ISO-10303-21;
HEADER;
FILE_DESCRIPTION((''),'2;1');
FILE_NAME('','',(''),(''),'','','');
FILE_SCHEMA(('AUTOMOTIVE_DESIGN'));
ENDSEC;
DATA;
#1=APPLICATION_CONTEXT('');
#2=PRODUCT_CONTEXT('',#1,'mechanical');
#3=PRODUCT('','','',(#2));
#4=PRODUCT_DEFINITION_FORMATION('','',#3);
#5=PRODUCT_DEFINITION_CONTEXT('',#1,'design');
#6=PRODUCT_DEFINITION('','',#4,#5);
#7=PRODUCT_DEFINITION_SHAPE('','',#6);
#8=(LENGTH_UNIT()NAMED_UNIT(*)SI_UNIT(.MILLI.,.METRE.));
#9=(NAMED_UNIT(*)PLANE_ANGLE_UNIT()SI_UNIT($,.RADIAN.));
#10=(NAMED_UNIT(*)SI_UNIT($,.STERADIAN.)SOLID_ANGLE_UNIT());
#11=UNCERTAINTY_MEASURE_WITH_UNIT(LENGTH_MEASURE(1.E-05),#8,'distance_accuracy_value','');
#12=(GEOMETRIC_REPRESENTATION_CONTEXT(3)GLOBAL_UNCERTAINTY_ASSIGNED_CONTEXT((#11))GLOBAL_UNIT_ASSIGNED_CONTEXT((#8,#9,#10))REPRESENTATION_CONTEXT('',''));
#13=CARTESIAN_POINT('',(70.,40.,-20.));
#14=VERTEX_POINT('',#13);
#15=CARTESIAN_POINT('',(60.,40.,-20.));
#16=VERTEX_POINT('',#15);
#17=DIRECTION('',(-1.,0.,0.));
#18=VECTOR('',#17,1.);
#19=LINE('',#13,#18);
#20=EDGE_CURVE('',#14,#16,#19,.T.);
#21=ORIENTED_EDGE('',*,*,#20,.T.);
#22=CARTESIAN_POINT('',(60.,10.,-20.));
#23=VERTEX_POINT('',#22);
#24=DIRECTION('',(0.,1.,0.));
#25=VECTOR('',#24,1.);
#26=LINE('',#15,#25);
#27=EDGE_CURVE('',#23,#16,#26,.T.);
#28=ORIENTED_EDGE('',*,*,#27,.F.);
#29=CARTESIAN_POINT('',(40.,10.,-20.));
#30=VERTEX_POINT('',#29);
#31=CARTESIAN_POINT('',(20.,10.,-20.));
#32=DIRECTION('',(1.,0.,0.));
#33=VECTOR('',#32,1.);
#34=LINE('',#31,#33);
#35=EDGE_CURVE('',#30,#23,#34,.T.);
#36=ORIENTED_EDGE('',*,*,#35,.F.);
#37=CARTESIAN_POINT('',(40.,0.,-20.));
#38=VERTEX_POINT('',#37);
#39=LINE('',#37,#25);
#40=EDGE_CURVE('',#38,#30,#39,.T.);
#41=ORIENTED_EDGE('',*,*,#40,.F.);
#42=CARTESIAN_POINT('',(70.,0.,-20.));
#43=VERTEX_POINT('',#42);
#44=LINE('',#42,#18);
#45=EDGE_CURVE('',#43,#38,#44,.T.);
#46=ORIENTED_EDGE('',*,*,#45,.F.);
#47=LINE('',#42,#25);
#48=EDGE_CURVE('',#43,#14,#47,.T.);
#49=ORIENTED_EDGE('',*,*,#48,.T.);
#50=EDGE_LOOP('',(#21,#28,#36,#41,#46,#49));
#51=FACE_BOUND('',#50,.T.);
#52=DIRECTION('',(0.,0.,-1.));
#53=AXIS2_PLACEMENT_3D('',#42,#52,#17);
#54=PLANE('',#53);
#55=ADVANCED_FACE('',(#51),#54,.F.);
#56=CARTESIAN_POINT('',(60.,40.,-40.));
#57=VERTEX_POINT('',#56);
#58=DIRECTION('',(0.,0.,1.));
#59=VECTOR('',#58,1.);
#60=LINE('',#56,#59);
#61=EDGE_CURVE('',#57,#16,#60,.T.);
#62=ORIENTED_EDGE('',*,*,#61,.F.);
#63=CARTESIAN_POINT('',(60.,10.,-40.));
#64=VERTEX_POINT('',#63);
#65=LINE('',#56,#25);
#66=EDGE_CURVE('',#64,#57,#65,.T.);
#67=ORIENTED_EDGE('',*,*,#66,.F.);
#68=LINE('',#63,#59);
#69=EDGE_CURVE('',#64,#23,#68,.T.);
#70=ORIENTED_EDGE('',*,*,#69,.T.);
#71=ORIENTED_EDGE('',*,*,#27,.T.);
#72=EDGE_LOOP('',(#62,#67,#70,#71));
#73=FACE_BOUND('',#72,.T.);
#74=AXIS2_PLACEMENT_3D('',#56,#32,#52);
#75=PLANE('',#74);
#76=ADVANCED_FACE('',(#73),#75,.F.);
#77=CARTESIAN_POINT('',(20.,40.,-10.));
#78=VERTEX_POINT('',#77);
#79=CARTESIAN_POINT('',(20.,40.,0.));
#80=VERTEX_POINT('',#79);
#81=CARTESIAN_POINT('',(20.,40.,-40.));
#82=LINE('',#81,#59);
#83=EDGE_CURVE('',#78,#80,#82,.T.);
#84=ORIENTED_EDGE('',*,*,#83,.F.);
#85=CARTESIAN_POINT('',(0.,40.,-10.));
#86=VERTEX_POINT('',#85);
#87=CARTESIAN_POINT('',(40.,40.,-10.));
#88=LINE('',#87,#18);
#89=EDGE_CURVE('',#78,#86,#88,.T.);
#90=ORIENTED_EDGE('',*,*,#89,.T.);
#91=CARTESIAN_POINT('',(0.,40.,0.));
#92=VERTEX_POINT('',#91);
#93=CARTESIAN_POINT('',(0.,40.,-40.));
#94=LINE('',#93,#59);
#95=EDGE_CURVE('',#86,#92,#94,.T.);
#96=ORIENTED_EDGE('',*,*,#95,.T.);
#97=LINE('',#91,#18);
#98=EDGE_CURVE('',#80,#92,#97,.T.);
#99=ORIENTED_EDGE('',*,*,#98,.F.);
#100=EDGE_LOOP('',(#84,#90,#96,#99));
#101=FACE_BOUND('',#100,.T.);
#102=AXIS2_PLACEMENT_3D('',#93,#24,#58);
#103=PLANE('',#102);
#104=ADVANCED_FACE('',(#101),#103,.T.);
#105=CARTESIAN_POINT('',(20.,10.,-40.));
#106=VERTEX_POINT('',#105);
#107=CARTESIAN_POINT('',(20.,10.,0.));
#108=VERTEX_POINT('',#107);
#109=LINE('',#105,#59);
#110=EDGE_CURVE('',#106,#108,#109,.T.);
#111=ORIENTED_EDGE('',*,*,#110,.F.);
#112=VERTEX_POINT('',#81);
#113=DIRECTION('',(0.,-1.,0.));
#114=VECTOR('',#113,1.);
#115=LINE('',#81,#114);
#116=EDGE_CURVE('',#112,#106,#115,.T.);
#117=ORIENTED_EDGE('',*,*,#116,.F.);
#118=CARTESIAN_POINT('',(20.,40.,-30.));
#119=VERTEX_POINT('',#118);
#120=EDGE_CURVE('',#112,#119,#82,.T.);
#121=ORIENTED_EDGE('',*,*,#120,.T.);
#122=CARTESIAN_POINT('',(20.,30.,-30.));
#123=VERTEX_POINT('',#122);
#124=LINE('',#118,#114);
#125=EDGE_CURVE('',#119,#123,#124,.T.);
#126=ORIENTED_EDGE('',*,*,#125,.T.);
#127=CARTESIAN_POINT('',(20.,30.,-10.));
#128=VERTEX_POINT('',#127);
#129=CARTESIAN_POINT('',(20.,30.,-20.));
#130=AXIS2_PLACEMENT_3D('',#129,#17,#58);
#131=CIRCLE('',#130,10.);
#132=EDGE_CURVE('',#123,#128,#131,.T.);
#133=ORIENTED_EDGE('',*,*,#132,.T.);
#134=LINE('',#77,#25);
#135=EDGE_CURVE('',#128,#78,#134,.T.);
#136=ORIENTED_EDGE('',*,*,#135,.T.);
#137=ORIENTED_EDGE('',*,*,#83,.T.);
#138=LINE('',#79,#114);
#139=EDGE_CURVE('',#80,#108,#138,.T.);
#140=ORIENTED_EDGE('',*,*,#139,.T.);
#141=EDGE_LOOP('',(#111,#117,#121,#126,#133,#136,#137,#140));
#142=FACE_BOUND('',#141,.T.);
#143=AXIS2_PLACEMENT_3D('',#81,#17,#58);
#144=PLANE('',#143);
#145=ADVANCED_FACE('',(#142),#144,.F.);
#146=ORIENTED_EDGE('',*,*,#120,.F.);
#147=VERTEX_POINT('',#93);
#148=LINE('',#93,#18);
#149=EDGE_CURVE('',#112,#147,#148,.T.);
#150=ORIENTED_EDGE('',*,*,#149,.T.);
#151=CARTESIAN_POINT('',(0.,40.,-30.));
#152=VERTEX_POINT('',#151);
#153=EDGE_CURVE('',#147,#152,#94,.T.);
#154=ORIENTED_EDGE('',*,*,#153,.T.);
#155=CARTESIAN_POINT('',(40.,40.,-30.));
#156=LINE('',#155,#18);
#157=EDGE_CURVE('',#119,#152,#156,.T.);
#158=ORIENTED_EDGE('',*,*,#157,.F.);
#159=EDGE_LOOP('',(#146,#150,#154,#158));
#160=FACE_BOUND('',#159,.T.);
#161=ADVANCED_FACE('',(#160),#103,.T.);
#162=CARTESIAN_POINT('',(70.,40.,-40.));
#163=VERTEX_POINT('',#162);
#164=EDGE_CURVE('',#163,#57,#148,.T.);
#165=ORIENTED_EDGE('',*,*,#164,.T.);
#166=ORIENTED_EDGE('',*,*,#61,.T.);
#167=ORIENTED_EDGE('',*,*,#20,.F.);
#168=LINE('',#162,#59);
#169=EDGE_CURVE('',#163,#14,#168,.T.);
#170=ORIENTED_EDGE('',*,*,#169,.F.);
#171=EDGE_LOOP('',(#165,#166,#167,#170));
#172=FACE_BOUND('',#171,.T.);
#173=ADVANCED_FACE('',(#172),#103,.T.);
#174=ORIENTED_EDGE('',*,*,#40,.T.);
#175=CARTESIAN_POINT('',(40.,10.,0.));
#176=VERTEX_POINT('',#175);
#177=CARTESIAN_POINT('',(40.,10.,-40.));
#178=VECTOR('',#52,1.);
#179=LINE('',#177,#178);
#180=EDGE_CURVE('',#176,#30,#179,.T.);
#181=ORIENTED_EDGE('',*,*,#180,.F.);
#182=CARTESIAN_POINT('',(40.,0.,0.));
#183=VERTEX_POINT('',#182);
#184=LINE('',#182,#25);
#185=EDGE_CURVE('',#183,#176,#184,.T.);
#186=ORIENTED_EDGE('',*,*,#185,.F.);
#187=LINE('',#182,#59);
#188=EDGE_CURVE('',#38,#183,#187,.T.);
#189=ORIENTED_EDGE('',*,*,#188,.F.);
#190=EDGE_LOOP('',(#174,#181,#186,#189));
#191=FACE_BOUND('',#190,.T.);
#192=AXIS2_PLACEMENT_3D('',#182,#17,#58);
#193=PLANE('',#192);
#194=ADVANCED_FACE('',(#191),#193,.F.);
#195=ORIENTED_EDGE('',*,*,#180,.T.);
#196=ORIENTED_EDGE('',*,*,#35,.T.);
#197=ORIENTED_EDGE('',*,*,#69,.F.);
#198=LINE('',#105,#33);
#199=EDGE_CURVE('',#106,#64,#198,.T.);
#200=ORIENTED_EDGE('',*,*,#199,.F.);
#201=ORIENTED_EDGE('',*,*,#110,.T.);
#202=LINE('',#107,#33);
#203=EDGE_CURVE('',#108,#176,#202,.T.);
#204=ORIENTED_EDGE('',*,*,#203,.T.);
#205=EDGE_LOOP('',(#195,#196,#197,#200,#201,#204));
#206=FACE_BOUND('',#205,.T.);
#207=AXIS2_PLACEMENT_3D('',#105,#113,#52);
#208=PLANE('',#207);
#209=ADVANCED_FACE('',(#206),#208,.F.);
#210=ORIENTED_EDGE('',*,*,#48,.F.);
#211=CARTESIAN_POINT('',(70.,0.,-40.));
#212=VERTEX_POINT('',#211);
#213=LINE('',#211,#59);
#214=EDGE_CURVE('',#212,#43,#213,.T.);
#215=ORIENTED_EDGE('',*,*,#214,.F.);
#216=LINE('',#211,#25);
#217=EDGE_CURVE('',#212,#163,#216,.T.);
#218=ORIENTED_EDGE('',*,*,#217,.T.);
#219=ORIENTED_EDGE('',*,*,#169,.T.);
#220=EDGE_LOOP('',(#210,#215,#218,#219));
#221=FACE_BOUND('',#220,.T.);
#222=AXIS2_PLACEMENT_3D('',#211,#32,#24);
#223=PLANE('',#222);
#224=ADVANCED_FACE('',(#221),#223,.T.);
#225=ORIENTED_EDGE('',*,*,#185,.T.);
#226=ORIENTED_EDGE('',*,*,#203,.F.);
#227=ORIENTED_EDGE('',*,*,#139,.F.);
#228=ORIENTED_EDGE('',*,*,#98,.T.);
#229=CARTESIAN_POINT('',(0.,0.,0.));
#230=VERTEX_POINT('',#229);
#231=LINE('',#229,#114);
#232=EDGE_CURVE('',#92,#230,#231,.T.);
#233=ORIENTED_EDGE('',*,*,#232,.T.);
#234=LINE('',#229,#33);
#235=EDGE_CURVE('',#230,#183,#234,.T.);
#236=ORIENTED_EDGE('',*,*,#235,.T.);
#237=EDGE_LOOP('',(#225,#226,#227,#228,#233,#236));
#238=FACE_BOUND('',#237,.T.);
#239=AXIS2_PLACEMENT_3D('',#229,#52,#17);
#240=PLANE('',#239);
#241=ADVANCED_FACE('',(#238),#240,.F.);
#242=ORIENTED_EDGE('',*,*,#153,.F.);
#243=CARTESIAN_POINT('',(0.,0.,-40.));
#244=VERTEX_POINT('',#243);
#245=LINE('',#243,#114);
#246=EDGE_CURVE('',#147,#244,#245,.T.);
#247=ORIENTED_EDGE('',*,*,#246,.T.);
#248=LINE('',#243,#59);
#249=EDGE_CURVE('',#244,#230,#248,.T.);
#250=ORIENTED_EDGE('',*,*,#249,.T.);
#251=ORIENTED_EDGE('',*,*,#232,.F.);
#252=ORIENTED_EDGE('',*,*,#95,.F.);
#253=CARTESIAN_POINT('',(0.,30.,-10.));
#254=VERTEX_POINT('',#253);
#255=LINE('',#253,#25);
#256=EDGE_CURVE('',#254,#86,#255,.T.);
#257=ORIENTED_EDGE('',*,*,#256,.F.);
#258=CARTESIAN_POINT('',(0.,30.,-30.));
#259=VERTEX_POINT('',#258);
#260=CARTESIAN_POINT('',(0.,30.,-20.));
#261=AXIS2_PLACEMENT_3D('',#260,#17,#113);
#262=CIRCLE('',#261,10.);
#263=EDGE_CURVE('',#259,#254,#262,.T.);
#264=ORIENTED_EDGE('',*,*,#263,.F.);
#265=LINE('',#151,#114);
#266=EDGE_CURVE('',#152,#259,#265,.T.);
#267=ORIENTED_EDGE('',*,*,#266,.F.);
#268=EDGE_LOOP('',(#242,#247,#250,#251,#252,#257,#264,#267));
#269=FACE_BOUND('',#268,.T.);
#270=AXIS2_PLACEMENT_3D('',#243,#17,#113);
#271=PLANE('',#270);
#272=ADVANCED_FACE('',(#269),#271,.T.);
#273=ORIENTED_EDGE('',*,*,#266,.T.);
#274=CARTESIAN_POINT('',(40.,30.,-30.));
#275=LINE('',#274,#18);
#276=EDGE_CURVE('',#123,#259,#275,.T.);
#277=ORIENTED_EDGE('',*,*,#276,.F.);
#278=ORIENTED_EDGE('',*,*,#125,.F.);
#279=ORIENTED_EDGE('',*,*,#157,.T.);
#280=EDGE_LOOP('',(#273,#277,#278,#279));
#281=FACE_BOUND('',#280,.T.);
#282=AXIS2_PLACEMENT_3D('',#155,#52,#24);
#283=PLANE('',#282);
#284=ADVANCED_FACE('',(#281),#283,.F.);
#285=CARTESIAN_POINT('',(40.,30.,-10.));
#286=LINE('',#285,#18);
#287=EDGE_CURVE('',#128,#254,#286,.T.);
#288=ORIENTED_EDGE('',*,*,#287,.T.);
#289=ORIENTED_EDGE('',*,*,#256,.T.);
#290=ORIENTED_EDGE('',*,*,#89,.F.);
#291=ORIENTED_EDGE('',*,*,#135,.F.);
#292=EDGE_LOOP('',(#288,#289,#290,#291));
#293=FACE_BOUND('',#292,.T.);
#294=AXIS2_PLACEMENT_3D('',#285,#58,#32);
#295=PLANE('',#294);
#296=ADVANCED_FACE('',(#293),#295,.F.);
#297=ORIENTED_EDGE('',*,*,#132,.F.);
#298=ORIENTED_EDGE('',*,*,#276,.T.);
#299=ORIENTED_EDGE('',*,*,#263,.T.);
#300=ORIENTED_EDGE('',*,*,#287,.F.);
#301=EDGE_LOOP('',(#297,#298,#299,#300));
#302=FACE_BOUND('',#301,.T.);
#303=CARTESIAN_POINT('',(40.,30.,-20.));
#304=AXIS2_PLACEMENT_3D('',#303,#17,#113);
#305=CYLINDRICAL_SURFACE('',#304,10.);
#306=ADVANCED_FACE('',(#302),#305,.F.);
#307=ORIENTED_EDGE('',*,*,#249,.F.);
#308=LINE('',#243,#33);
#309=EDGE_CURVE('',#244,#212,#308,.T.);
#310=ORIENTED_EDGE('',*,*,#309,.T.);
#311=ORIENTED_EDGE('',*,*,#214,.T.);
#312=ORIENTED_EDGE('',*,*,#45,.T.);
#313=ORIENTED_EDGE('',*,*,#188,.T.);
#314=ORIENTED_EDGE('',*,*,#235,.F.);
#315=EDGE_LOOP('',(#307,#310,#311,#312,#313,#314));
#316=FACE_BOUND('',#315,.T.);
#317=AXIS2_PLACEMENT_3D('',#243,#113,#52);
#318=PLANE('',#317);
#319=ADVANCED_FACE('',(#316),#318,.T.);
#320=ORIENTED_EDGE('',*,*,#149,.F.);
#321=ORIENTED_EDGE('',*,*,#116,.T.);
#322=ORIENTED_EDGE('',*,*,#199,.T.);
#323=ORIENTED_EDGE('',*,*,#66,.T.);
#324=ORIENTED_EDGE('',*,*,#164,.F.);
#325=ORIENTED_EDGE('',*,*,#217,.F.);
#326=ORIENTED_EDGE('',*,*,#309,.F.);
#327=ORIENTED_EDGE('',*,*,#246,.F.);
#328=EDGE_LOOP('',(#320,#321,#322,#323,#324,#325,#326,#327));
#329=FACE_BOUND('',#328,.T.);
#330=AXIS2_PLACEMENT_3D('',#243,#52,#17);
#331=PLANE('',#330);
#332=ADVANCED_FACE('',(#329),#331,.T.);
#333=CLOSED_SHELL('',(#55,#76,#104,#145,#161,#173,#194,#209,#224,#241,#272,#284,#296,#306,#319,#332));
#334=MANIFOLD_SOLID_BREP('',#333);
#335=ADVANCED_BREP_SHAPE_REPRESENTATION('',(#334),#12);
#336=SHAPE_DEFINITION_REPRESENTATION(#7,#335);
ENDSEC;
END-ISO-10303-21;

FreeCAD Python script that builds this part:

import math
import FreeCAD as App
import Part
import Sketcher
from FreeCAD import Vector
Q = App.Units.Quantity

doc = App.newDocument("Part")
body = doc.addObject("PartDesign::Body", "Body")

sketch1 = body.newObject("Sketcher::SketchObject", "Sketch")
sketch1.AttachmentSupport = (doc.getObject("XY_Plane"), [""])
sketch1.MapMode = "FlatFace"
sketch1.addGeometry(Part.LineSegment(Vector(0, 40, 0), Vector(0, 0, 0)), False)
sketch1.addGeometry(Part.LineSegment(Vector(0, 0, 0), Vector(70, 0, 0)), False)
sketch1.addGeometry(Part.LineSegment(Vector(70, 0, 0), Vector(70, 40, 0)), False)
sketch1.addGeometry(Part.LineSegment(Vector(70, 40, 0), Vector(0, 40, 0)), False)
sketch1.addConstraint(Sketcher.Constraint("Coincident", 0, 2, 1, 1))
sketch1.addConstraint(Sketcher.Constraint("Coincident", 1, 2, 2, 1))
sketch1.addConstraint(Sketcher.Constraint("Coincident", 2, 2, 3, 1))
sketch1.addConstraint(Sketcher.Constraint("Coincident", 3, 2, 0, 1))
sketch1.addConstraint(Sketcher.Constraint("Vertical", 0))
sketch1.addConstraint(Sketcher.Constraint("Horizontal", 1))
sketch1.addConstraint(Sketcher.Constraint("Vertical", 2))
sketch1.addConstraint(Sketcher.Constraint("Horizontal", 3))
sketch1.addConstraint(Sketcher.Constraint("Coincident", 0, 2, -1, 1))
sketch1.addConstraint(Sketcher.Constraint("DistanceX", 1, 1, 1, 2, Q("70 mm")))
sketch1.addConstraint(Sketcher.Constraint("DistanceY", 0, 2, 0, 1, Q("40 mm")))
pad1 = body.newObject("PartDesign::Pad", "Pad")
pad1.Profile = sketch1
pad1.Length = 40
pad1.Reversed = True

sketch2 = body.newObject("Sketcher::SketchObject", "Sketch001")
sketch2.AttachmentSupport = (doc.getObject("XY_Plane"), [""])
sketch2.MapMode = "FlatFace"
sketch2.addGeometry(Part.LineSegment(Vector(20, 40, 0), Vector(20, 10, 0)), False)
sketch2.addGeometry(Part.LineSegment(Vector(20, 10, 0), Vector(60, 10, 0)), False)
sketch2.addGeometry(Part.LineSegment(Vector(60, 10, 0), Vector(60, 40, 0)), False)
sketch2.addGeometry(Part.LineSegment(Vector(60, 40, 0), Vector(20, 40, 0)), False)
sketch2.addConstraint(Sketcher.Constraint("Coincident", 0, 2, 1, 1))
sketch2.addConstraint(Sketcher.Constraint("Coincident", 1, 2, 2, 1))
sketch2.addConstraint(Sketcher.Constraint("Coincident", 2, 2, 3, 1))
sketch2.addConstraint(Sketcher.Constraint("Coincident", 3, 2, 0, 1))
sketch2.addConstraint(Sketcher.Constraint("Vertical", 0))
sketch2.addConstraint(Sketcher.Constraint("Horizontal", 1))
sketch2.addConstraint(Sketcher.Constraint("Vertical", 2))
sketch2.addConstraint(Sketcher.Constraint("Horizontal", 3))
sketch2.addConstraint(Sketcher.Constraint("DistanceX", 1, 1, 1, 2, Q("40 mm")))
sketch2.addConstraint(Sketcher.Constraint("DistanceY", 0, 2, 0, 1, Q("30 mm")))
sketch2.addConstraint(Sketcher.Constraint("DistanceX", -1, 1, 0, 2, Q("20 mm")))
sketch2.addConstraint(Sketcher.Constraint("DistanceY", -1, 1, 0, 2, Q("10 mm")))
pocket1 = body.newObject("PartDesign::Pocket", "Pocket")
pocket1.Profile = sketch2
pocket1.Length = 40

sketch3 = body.newObject("Sketcher::SketchObject", "Sketch002")
sketch3.AttachmentSupport = (doc.getObject("XZ_Plane"), [""])
sketch3.MapMode = "FlatFace"
sketch3.AttachmentOffset = App.Placement(Vector(0, 0, -40), App.Rotation())
sketch3.addGeometry(Part.LineSegment(Vector(40, -20, 0), Vector(40, 0, 0)), False)
sketch3.addGeometry(Part.LineSegment(Vector(40, 0, 0), Vector(70, 0, 0)), False)
sketch3.addGeometry(Part.LineSegment(Vector(70, 0, 0), Vector(70, -20, 0)), False)
sketch3.addGeometry(Part.LineSegment(Vector(70, -20, 0), Vector(40, -20, 0)), False)
sketch3.addConstraint(Sketcher.Constraint("Coincident", 0, 2, 1, 1))
sketch3.addConstraint(Sketcher.Constraint("Coincident", 1, 2, 2, 1))
sketch3.addConstraint(Sketcher.Constraint("Coincident", 2, 2, 3, 1))
sketch3.addConstraint(Sketcher.Constraint("Coincident", 3, 2, 0, 1))
sketch3.addConstraint(Sketcher.Constraint("Vertical", 0))
sketch3.addConstraint(Sketcher.Constraint("Horizontal", 1))
sketch3.addConstraint(Sketcher.Constraint("Vertical", 2))
sketch3.addConstraint(Sketcher.Constraint("Horizontal", 3))
sketch3.addConstraint(Sketcher.Constraint("PointOnObject", 0, 2, -1))
sketch3.addConstraint(Sketcher.Constraint("DistanceX", 1, 1, 1, 2, Q("30 mm")))
sketch3.addConstraint(Sketcher.Constraint("DistanceY", 0, 1, 0, 2, Q("20 mm")))
sketch3.addConstraint(Sketcher.Constraint("DistanceX", -1, 1, 0, 2, Q("40 mm")))
pocket2 = body.newObject("PartDesign::Pocket", "Pocket001")
pocket2.Profile = sketch3
pocket2.Length = 40
pocket2.Reversed = True

sketch4 = body.newObject("Sketcher::SketchObject", "Sketch003")
sketch4.AttachmentSupport = (doc.getObject("YZ_Plane"), [""])
sketch4.MapMode = "FlatFace"
sketch4.addGeometry(Part.LineSegment(Vector(40, -30, 0), Vector(30, -30, 0)), False)
sketch4.addGeometry(Part.ArcOfCircle(Part.Circle(Vector(30, -20, 0), Vector(0, 0, 1), 10), math.radians(90), math.radians(270)), False)
sketch4.addGeometry(Part.LineSegment(Vector(30, -10, 0), Vector(40, -10, 0)), False)
sketch4.addGeometry(Part.LineSegment(Vector(40, -10, 0), Vector(40, -30, 0)), False)
sketch4.addConstraint(Sketcher.Constraint("Tangent", 0, 2, 1, 2))
sketch4.addConstraint(Sketcher.Constraint("Tangent", 1, 1, 2, 1))
sketch4.addConstraint(Sketcher.Constraint("Coincident", 2, 2, 3, 1))
sketch4.addConstraint(Sketcher.Constraint("Coincident", 3, 2, 0, 1))
sketch4.addConstraint(Sketcher.Constraint("Horizontal", 0))
sketch4.addConstraint(Sketcher.Constraint("Horizontal", 2))
sketch4.addConstraint(Sketcher.Constraint("Vertical", 3))
sketch4.addConstraint(Sketcher.Constraint("Radius", 1, Q("10 mm")))
sketch4.addConstraint(Sketcher.Constraint("DistanceX", 0, 2, 0, 1, Q("10 mm")))
sketch4.addConstraint(Sketcher.Constraint("DistanceX", -1, 1, 1, 3, Q("30 mm")))
sketch4.addConstraint(Sketcher.Constraint("DistanceY", 1, 3, -1, 1, Q("20 mm")))
pocket3 = body.newObject("PartDesign::Pocket", "Pocket002")
pocket3.Profile = sketch4
pocket3.Length = 40
pocket3.Reversed = True

doc.recompute()
